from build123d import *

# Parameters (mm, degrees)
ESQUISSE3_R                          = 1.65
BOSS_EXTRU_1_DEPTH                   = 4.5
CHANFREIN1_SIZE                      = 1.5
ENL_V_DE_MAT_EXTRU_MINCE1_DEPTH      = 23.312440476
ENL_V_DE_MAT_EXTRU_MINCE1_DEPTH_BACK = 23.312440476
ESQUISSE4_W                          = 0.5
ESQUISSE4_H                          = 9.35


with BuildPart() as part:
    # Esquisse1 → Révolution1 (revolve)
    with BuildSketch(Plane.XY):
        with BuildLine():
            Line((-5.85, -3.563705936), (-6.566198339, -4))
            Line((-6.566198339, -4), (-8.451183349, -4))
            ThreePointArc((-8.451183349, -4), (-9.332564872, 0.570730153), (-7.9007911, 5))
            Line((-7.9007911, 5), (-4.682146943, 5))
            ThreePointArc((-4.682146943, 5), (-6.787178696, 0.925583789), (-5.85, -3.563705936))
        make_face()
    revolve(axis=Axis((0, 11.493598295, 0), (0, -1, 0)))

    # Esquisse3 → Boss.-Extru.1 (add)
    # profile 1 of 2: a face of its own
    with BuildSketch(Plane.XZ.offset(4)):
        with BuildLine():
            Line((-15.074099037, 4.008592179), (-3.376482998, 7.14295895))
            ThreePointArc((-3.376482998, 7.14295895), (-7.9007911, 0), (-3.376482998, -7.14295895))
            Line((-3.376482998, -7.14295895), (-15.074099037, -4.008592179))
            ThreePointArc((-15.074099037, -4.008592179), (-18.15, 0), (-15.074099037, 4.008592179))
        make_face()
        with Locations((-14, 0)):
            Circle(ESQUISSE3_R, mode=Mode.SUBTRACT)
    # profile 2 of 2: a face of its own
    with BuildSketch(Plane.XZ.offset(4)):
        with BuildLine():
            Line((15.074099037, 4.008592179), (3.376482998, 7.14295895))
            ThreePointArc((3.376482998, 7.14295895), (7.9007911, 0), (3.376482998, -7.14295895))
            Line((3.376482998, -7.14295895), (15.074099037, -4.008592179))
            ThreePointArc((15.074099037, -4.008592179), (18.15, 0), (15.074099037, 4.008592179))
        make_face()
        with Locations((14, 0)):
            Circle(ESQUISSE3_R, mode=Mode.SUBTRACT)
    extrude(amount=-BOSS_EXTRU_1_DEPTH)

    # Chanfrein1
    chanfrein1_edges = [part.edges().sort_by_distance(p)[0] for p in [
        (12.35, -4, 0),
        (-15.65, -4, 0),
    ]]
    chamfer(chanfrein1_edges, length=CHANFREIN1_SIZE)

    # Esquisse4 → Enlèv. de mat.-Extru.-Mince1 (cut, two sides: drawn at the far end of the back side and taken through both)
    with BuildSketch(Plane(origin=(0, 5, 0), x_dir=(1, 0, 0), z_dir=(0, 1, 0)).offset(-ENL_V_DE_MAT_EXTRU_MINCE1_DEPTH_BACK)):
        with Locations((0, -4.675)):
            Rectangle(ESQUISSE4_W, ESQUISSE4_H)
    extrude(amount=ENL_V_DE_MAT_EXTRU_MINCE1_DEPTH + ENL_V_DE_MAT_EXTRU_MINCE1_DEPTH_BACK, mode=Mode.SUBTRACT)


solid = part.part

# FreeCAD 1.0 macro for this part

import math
import FreeCAD as App
import Part
import Sketcher

V = App.Vector
Q = App.Units.Quantity


def edges_at(feature, points):
    """Names of the edges that pass closest to the given points."""
    edges = feature.Shape.Edges
    near = lambda p: min(range(len(edges)), key=lambda i: edges[i].distToShape(Part.Vertex(*p))[0])
    return sorted({f"Edge{near(p) + 1}" for p in points})


def add_polygon(sketch, points):
    """Adds a closed chain of lines whose ends are joined by coincident constraints."""
    first, n = sketch.GeometryCount, len(points)
    for a, b in zip(points, points[1:] + points[:1]):
        sketch.addGeometry(Part.LineSegment(App.Vector(*a, 0), App.Vector(*b, 0)), False)
    for i in range(n):
        sketch.addConstraint(Sketcher.Constraint("Coincident", first + i, 2, first + (i + 1) % n, 1))

doc = App.newDocument("Part")
params = doc.addObject("Spreadsheet::Sheet", "Params")
for row, (alias, value) in enumerate([
    ("sketch1_radius", "6.85 mm"),
    ("sketch1_radius2", "9.35 mm"),
    ("revolution_angle", "360 deg"),
    ("sketch2_diameter", "3.3 mm"),
    ("sketch2_radius", "4.15 mm"),
    ("pad1_length", "4.5 mm"),
    ("chamfer_size", "1.5 mm"),
    ("sketch3_width", "0.5 mm"),
    ("sketch3_height", "9.35 mm"),
], start=1):
    params.set(f"A{row}", alias)
    params.set(f"B{row}", "=" + value)
    params.setAlias(f"B{row}", alias)

body = doc.addObject("PartDesign::Body", "Body")

sketch1 = body.newObject("Sketcher::SketchObject", "Sketch")
sketch1.AttachmentSupport = (doc.getObject("XY_Plane"), [""])
sketch1.MapMode = "FlatFace"
sketch1.addGeometry([
    Part.LineSegment(V(-6.6, -4, 0), V(-5.8, -3.6, 0)),
    Part.ArcOfCircle(Part.Circle(V(0, 0, 0), V(0, 0, 1), 6.8), math.radians(133), math.radians(211)),
    Part.LineSegment(V(-4.7, 5, 0), V(-7.9, 5, 0)),
    Part.ArcOfCircle(Part.Circle(V(0, 0, 0), V(0, 0, 1), 9.4), math.radians(148), math.radians(205)),
    Part.LineSegment(V(-8.5, -4, 0), V(-6.6, -4, 0)),
], False)
sketch1.addConstraint([
    Sketcher.Constraint("Coincident", 0, 2, 1, 2),
    Sketcher.Constraint("Coincident", 1, 1, 2, 1),
    Sketcher.Constraint("Coincident", 2, 2, 3, 1),
    Sketcher.Constraint("Coincident", 3, 2, 4, 1),
    Sketcher.Constraint("Coincident", 4, 2, 0, 1),
    Sketcher.Constraint("Horizontal", 2),
    Sketcher.Constraint("Horizontal", 4),
    Sketcher.Constraint("Coincident", 1, 3, -1, 1),
    Sketcher.Constraint("Coincident", 3, 3, -1, 1),
    Sketcher.Constraint("Radius", 1, Q("6.85 mm")),
    Sketcher.Constraint("Radius", 3, Q("9.35 mm")),
    Sketcher.Constraint("DistanceY", -1, 1, 1, 1, Q("5 mm")),
    Sketcher.Constraint("DistanceY", 3, 2, -1, 1, Q("4 mm")),
    Sketcher.Constraint("DistanceX", 0, 2, -1, 1, Q("5.85 mm")),
    Sketcher.Constraint("DistanceX", 4, 2, -1, 1, Q("6.566198 mm")),
])
sketch1.setExpression("Constraints[9]", "Params.sketch1_radius")
sketch1.setExpression("Constraints[10]", "Params.sketch1_radius2")
revolution = body.newObject("PartDesign::Revolution", "Revolution")
revolution.Profile = sketch1
revolution.ReferenceAxis = (sketch1, ["V_Axis"])
revolution.setExpression("Angle", "Params.revolution_angle")

sketch2 = body.newObject("Sketcher::SketchObject", "Sketch001")
sketch2.AttachmentSupport = (doc.getObject("XZ_Plane"), [""])
sketch2.MapMode = "FlatFace"
sketch2.AttachmentOffset = App.Placement(V(0, 0, 4), App.Rotation())
sketch2.addGeometry([
    Part.LineSegment(V(-3.4, 7.1, 0), V(-15.1, 4, 0)),
    Part.ArcOfCircle(Part.Circle(V(-14, 0, 0), V(0, 0, 1), 4.2), math.radians(105), math.radians(255)),
    Part.LineSegment(V(-15.1, -4, 0), V(-3.4, -7.1, 0)),
    Part.ArcOfCircle(Part.Circle(V(0, 0, 0), V(0, 0, 1), 7.9), math.radians(115), math.radians(245)),
    Part.Circle(V(-14, 0, 0), V(0, 0, 1), 1.6),
    Part.LineSegment(V(15.1, 4, 0), V(3.4, 7.1, 0)),
    Part.ArcOfCircle(Part.Circle(V(0, 0, 0), V(0, 0, 1), 7.9), math.radians(-65), math.radians(65)),
    Part.LineSegment(V(3.4, -7.1, 0), V(15.1, -4, 0)),
    Part.ArcOfCircle(Part.Circle(V(14, 0, 0), V(0, 0, 1), 4.2), math.radians(-75), math.radians(75)),
    Part.Circle(V(14, 0, 0), V(0, 0, 1), 1.6),
], False)
sketch2.addConstraint([
    Sketcher.Constraint("Tangent", 0, 2, 1, 1),
    Sketcher.Constraint("Tangent", 1, 2, 2, 1),
    Sketcher.Constraint("Coincident", 2, 2, 3, 2),
    Sketcher.Constraint("Coincident", 3, 1, 0, 1),
    Sketcher.Constraint("Coincident", 5, 2, 6, 2),
    Sketcher.Constraint("Coincident", 6, 1, 7, 1),
    Sketcher.Constraint("Tangent", 7, 2, 8, 1),
    Sketcher.Constraint("Tangent", 8, 2, 5, 1),
    Sketcher.Constraint("Coincident", 3, 3, -1, 1),
    Sketcher.Constraint("Coincident", 6, 3, -1, 1),
    Sketcher.Constraint("Coincident", 4, 3, 1, 3),
    Sketcher.Constraint("Coincident", 9, 3, 8, 3),
    Sketcher.Constraint("Equal", 3, 6),
    Sketcher.Constraint("Equal", 1, 8),
    Sketcher.Constraint("Equal", 4, 9),
    Sketcher.Constraint("Symmetric", 1, 3, 8, 3, -1, 1),
    Sketcher.Constraint("Symmetric", 1, 2, 7, 2, -2),
    Sketcher.Constraint("Parallel", 2, 5),
    Sketcher.Constraint("Parallel", 0, 7),
    Sketcher.Constraint("Diameter", 4, Q("3.3 mm")),
    Sketcher.Constraint("Angle", 0, Q("-165 deg")),
    Sketcher.Constraint("Radius", 1, Q("4.15 mm")),
    Sketcher.Constraint("DistanceX", 1, 3, -1, 1, Q("14 mm")),
    Sketcher.Constraint("Radius", 3, Q("7.900791 mm")),
])
sketch2.setExpression("Constraints[19]", "Params.sketch2_diameter")
sketch2.setExpression("Constraints[21]", "Params.sketch2_radius")
pad1 = body.newObject("PartDesign::Pad", "Pad")
pad1.Profile = sketch2
pad1.setExpression("Length", "Params.pad1_length")
pad1.Reversed = True
doc.recompute()

chamfer = body.newObject("PartDesign::Chamfer", "Chamfer")
chamfer.Base = (pad1, edges_at(pad1, [(12.35, -4, 0), (-15.65, -4, 0)]))
chamfer.setExpression("Size", "Params.chamfer_size")

sketch3 = body.newObject("Sketcher::SketchObject", "Sketch002")
sketch3.AttachmentSupport = (doc.getObject("XZ_Plane"), [""])
sketch3.MapMode = "FlatFace"
sketch3.AttachmentOffset = App.Placement(V(0, 0, -5), App.Rotation())
add_polygon(sketch3, [(-0.2, 0), (-0.2, 9.3), (0.2, 9.3), (0.2, 0)])
sketch3.addConstraint([
    Sketcher.Constraint("Vertical", 0),
    Sketcher.Constraint("Horizontal", 1),
    Sketcher.Constraint("Vertical", 2),
    Sketcher.Constraint("Horizontal", 3),
    Sketcher.Constraint("Symmetric", 2, 2, 3, 2, -1, 1),
    Sketcher.Constraint("DistanceX", 1, 1, 1, 2, Q("0.5 mm")),
    Sketcher.Constraint("DistanceY", 0, 1, 0, 2, Q("9.35 mm")),
])
sketch3.setExpression("Constraints[9]", "Params.sketch3_width")
sketch3.setExpression("Constraints[10]", "Params.sketch3_height")
pocket1 = body.newObject("PartDesign::Pocket", "Pocket")
pocket1.Profile = sketch3
pocket1.Type = "ThroughAll"
pocket1.Midplane = True

doc.recompute()
